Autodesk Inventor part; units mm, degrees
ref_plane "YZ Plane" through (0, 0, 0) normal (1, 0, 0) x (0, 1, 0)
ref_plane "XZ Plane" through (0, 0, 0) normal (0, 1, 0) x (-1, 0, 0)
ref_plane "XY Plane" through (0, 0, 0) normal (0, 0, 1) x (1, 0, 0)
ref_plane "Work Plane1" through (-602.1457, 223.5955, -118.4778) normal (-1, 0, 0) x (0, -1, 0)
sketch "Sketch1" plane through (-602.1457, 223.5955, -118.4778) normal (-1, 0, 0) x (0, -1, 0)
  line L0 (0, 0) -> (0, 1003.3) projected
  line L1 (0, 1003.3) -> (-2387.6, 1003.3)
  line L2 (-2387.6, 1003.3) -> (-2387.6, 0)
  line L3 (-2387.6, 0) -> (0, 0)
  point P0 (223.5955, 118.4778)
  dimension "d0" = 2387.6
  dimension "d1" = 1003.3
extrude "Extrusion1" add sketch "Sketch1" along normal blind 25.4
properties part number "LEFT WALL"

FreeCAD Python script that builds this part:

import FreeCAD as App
import Part
import Sketcher
Q = App.Units.Quantity


def add_polygon(sketch, points):
    """Adds a closed chain of lines whose ends are joined by coincident constraints."""
    first, n = sketch.GeometryCount, len(points)
    for a, b in zip(points, points[1:] + points[:1]):
        sketch.addGeometry(Part.LineSegment(App.Vector(*a, 0), App.Vector(*b, 0)), False)
    for i in range(n):
        sketch.addConstraint(Sketcher.Constraint("Coincident", first + i, 2, first + (i + 1) % n, 1))

doc = App.newDocument("Part")
body = doc.addObject("PartDesign::Body", "Body")

# Sketch on YZ plane
sketch1 = body.newObject("Sketcher::SketchObject", "Sketch")
sketch1.AttachmentSupport = (doc.getObject("YZ_Plane"), [""])
sketch1.MapMode = "FlatFace"
sketch1.AttachmentOffset = App.Placement(App.Vector(0, 0, -602.1457), App.Rotation())
add_polygon(sketch1, [(2611.1955, -118.4778), (223.5955, -118.4778), (223.5955, 884.8222), (2611.1955, 884.8222)])  # lines 0-3
sketch1.addConstraint(Sketcher.Constraint("Horizontal", 0))
sketch1.addConstraint(Sketcher.Constraint("Vertical", 1))
sketch1.addConstraint(Sketcher.Constraint("Horizontal", 2))
sketch1.addConstraint(Sketcher.Constraint("Vertical", 3))
sketch1.addConstraint(Sketcher.Constraint("DistanceX", 0, 2, 0, 1, Q("94 in")))
sketch1.addConstraint(Sketcher.Constraint("DistanceY", 1, 1, 1, 2, Q("39.5 in")))
sketch1.addConstraint(Sketcher.Constraint("DistanceX", -1, 1, 0, 2, 223.5955))
sketch1.addConstraint(Sketcher.Constraint("DistanceY", 0, 2, -1, 1, 118.4778))
pad1 = body.newObject("PartDesign::Pad", "Pad")
pad1.Profile = sketch1
pad1.Length = Q("1 in")
pad1.Reversed = True

doc.recompute()
